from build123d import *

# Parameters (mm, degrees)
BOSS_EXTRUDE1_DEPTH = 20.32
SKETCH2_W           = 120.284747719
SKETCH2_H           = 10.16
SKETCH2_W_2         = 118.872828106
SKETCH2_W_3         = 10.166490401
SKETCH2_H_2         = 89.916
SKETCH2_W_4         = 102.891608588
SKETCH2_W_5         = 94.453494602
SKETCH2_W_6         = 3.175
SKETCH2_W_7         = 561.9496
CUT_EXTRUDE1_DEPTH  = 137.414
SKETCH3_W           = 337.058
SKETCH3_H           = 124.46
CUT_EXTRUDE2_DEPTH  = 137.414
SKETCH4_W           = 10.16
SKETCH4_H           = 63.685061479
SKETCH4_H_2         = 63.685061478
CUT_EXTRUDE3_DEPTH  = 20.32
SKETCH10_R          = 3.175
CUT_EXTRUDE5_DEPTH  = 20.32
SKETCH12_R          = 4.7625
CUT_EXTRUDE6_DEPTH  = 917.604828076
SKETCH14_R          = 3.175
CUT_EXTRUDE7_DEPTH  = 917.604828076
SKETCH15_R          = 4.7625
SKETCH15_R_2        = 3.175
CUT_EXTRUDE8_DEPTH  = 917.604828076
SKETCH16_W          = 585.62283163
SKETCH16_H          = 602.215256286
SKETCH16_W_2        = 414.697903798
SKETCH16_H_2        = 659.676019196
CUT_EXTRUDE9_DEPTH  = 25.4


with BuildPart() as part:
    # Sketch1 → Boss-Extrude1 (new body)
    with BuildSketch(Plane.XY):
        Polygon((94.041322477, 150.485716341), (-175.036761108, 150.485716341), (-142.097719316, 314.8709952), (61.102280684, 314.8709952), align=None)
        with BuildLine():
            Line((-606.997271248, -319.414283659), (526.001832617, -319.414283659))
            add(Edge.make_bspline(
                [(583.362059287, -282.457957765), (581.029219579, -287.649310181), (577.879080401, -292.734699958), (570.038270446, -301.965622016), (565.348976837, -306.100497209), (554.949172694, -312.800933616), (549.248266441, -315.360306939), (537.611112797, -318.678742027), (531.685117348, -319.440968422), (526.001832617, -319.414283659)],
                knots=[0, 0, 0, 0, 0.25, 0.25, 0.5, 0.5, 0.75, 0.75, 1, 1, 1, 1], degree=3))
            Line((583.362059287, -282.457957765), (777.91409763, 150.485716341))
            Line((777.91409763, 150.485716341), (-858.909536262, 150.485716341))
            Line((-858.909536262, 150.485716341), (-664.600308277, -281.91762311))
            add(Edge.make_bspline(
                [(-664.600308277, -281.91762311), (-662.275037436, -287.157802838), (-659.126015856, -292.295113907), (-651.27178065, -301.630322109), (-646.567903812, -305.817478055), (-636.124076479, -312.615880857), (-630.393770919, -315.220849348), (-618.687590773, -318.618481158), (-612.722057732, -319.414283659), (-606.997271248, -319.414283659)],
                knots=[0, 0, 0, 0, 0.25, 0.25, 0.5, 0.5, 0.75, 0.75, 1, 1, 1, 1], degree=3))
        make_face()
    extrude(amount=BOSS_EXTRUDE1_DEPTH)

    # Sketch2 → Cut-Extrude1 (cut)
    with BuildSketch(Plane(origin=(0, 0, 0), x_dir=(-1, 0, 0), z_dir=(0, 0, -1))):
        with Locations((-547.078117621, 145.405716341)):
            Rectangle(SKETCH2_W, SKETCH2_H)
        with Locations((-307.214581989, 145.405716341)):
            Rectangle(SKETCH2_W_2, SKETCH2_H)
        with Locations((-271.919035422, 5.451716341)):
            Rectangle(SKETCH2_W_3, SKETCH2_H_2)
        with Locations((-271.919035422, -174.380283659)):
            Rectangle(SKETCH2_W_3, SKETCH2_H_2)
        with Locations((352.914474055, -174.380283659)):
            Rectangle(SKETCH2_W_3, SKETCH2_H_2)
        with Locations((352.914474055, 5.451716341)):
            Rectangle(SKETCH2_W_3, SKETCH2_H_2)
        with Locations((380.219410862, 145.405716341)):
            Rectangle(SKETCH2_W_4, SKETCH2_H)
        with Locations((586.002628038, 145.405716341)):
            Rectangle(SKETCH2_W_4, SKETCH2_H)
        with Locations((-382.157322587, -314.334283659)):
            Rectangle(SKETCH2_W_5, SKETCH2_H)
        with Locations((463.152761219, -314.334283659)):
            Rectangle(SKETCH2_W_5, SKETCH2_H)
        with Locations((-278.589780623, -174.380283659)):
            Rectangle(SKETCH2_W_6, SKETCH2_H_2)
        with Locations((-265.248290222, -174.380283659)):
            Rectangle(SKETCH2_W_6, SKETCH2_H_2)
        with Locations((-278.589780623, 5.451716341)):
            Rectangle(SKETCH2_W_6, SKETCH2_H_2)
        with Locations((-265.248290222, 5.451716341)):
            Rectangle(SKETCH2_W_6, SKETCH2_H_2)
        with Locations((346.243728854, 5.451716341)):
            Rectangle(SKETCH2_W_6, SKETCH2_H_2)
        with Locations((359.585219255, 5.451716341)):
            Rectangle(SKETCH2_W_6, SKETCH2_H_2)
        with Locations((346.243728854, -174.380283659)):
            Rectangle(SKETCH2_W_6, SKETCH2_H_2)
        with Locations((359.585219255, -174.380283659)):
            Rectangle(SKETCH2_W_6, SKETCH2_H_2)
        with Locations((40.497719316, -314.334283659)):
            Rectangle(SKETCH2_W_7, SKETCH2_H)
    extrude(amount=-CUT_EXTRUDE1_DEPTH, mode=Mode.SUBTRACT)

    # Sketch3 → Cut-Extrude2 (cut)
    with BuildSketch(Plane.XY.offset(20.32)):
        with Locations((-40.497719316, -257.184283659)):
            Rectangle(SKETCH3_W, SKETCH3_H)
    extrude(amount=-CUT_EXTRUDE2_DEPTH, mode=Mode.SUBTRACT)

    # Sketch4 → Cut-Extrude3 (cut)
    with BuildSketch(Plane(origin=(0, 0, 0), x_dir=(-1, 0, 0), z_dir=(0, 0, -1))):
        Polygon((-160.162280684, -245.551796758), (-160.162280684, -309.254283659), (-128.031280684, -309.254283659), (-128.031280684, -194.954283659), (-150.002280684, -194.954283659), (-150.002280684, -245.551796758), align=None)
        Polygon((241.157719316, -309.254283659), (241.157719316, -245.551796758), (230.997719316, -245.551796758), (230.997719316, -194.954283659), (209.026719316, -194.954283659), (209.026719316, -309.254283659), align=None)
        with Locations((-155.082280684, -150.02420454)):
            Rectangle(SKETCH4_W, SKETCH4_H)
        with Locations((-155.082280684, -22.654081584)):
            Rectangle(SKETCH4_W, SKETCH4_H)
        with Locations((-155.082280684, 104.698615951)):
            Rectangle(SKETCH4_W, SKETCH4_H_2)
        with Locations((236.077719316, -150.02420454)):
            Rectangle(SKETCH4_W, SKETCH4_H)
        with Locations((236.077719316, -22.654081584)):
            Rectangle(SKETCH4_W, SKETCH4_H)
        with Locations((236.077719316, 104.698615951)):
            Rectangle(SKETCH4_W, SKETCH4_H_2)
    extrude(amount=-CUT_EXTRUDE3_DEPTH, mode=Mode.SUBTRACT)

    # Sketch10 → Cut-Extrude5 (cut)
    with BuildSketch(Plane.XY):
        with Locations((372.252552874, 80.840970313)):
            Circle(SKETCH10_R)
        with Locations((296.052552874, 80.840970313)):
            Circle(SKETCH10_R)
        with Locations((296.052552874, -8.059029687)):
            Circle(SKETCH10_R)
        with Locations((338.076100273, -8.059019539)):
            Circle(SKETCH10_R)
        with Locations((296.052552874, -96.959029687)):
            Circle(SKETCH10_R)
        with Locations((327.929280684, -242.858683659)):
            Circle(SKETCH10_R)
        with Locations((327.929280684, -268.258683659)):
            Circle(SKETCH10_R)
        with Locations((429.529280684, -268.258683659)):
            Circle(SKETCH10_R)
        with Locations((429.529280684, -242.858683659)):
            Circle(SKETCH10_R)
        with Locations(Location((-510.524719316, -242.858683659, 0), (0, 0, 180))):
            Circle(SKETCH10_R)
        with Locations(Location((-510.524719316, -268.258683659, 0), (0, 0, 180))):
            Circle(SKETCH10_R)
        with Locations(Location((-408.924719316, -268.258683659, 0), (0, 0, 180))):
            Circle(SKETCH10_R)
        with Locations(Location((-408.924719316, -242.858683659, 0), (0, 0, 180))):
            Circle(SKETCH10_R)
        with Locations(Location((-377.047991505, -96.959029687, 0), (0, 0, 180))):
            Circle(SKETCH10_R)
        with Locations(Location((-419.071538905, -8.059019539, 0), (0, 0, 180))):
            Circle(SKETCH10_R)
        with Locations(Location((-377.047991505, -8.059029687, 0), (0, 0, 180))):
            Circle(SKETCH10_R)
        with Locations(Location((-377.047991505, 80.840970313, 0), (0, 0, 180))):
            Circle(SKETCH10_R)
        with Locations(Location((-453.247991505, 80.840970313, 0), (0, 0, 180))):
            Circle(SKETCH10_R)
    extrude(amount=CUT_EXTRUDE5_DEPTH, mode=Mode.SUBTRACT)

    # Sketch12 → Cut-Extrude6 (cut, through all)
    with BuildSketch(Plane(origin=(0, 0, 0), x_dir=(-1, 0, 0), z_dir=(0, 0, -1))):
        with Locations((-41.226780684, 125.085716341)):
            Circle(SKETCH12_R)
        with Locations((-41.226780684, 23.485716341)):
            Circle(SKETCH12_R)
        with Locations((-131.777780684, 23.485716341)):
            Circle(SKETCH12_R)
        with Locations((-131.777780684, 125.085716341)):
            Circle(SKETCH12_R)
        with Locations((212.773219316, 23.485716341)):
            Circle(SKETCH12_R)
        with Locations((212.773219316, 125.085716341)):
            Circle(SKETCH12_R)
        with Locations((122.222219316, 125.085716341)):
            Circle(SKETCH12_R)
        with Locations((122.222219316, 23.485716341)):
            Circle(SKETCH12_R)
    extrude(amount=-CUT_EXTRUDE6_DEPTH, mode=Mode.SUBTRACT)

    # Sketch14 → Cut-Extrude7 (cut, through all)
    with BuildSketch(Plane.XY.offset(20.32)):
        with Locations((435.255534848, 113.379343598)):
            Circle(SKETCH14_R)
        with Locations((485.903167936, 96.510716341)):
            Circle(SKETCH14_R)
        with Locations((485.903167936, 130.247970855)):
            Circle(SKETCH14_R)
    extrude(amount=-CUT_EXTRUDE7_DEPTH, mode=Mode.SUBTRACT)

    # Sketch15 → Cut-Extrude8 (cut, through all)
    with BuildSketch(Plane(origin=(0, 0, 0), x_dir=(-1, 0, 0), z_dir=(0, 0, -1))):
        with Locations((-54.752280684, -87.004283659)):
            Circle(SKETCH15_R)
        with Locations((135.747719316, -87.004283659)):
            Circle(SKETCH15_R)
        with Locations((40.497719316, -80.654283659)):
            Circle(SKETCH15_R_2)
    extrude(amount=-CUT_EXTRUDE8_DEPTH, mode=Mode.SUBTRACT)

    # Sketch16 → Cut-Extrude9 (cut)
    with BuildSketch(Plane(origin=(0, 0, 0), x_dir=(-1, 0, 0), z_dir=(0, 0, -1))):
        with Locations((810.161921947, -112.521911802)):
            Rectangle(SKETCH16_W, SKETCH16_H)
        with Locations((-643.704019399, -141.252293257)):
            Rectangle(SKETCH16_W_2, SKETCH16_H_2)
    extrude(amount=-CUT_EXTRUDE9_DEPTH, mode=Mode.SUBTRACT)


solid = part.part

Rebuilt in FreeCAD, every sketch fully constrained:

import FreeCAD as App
import Part
import Sketcher
from FreeCAD import Vector
Q = App.Units.Quantity

doc = App.newDocument("Part")
body = doc.addObject("PartDesign::Body", "Body")

sketch1 = doc.addObject("Sketcher::SketchObject", "Sketch")
body.addObject(sketch1)
sketch1.AttachmentSupport = (doc.XY_Plane, [""])
sketch1.MapMode = "FlatFace"
sketch1.addGeometry([
    Part.LineSegment(Vector(-142.097719, 314.870995, 0), Vector(-175.036761, 150.485716, 0)),
    Part.LineSegment(Vector(-175.036761, 150.485716, 0), Vector(-858.909536, 150.485716, 0)),
    Part.LineSegment(Vector(-858.909536, 150.485716, 0), Vector(-664.600308, -281.917623, 0)),
    Part.BSplineCurve([Vector(-664.600308, -281.917623, 0), Vector(-662.275037, -287.157803, 0), Vector(-659.126016, -292.295114, 0), Vector(-651.271781, -301.630322, 0), Vector(-646.567904, -305.817478, 0), Vector(-636.124076, -312.615881, 0), Vector(-630.393771, -315.220849, 0), Vector(-618.687591, -318.618481, 0), Vector(-612.722058, -319.414284, 0), Vector(-606.997271, -319.414284, 0)], [4, 2, 2, 2, 4], [0, 0.25, 0.5, 0.75, 1], False, 3, [1, 1, 1, 1, 1, 1, 1, 1, 1, 1], False),
    Part.LineSegment(Vector(-606.997271, -319.414284, 0), Vector(526.001833, -319.414284, 0)),
    Part.BSplineCurve([Vector(583.362059, -282.457958, 0), Vector(581.02922, -287.64931, 0), Vector(577.87908, -292.7347, 0), Vector(570.03827, -301.965622, 0), Vector(565.348977, -306.100497, 0), Vector(554.949173, -312.800934, 0), Vector(549.248266, -315.360307, 0), Vector(537.611113, -318.678742, 0), Vector(531.685117, -319.440968, 0), Vector(526.001833, -319.414284, 0)], [4, 2, 2, 2, 4], [0, 0.25, 0.5, 0.75, 1], False, 3, [1, 1, 1, 1, 1, 1, 1, 1, 1, 1], False),
    Part.LineSegment(Vector(583.362059, -282.457958, 0), Vector(777.914098, 150.485716, 0)),
    Part.LineSegment(Vector(777.914098, 150.485716, 0), Vector(94.041322, 150.485716, 0)),
    Part.LineSegment(Vector(94.041322, 150.485716, 0), Vector(61.102281, 314.870995, 0)),
    Part.LineSegment(Vector(61.102281, 314.870995, 0), Vector(-142.097719, 314.870995, 0)),
], False)
sketch1.addConstraint([
    Sketcher.Constraint("Block", 3),
    Sketcher.Constraint("Block", 5),
    Sketcher.Constraint("Coincident", 0, 2, 1, 1),
    Sketcher.Constraint("Coincident", 1, 2, 2, 1),
    Sketcher.Constraint("Coincident", 2, 2, 3, 1),
    Sketcher.Constraint("Coincident", 3, 2, 4, 1),
    Sketcher.Constraint("Coincident", 4, 2, 5, 2),
    Sketcher.Constraint("Coincident", 5, 1, 6, 1),
    Sketcher.Constraint("Coincident", 6, 2, 7, 1),
    Sketcher.Constraint("Coincident", 7, 2, 8, 1),
    Sketcher.Constraint("Coincident", 8, 2, 9, 1),
    Sketcher.Constraint("Coincident", 9, 2, 0, 1),
    Sketcher.Constraint("Horizontal", 1),
    Sketcher.Constraint("Horizontal", 7),
    Sketcher.Constraint("Horizontal", 9),
    Sketcher.Constraint("Horizontal", 1, 2, 6, 2),
    Sketcher.Constraint("Equal", 1, 7),
    Sketcher.Constraint("Equal", 0, 8),
    Sketcher.Constraint("DistanceX", 9, 2, 9, 1, Q("8 in")),
    Sketcher.Constraint("DistanceY", 4, 2, 0, 2, Q("18.5 in")),
    Sketcher.Constraint("DistanceX", 1, 2, 1, 1, Q("683.872775 mm")),
    Sketcher.Constraint("DistanceX", 0, 2, -1, 1, Q("175.036761 mm")),
    Sketcher.Constraint("DistanceX", -1, 1, 8, 2, Q("61.102281 mm")),
    Sketcher.Constraint("DistanceY", 7, 2, 8, 2, Q("164.385279 mm")),
])
pad1 = doc.addObject("PartDesign::Pad", "Pad")
body.addObject(pad1)
pad1.Profile = sketch1
pad1.Length = Q("0.8 in")

sketch2 = doc.addObject("Sketcher::SketchObject", "Sketch001")
body.addObject(sketch2)
sketch2.AttachmentSupport = (doc.XY_Plane, [""])
sketch2.MapMode = "FlatFace"
sketch2.addGeometry([
    Part.LineSegment(Vector(607, 150, 0), Vector(607, 140, 0)),
    Part.LineSegment(Vector(607, 140, 0), Vector(487, 140, 0)),
    Part.LineSegment(Vector(487, 140, 0), Vector(487, 150, 0)),
    Part.LineSegment(Vector(487, 150, 0), Vector(607, 150, 0)),
    Part.LineSegment(Vector(367, 150, 0), Vector(367, 140, 0)),
    Part.LineSegment(Vector(367, 140, 0), Vector(248, 140, 0)),
    Part.LineSegment(Vector(248, 140, 0), Vector(248, 150, 0)),
    Part.LineSegment(Vector(248, 150, 0), Vector(367, 150, 0)),
    Part.LineSegment(Vector(280, 50, 0), Vector(280, -40, 0)),
    Part.LineSegment(Vector(280, -40, 0), Vector(264, -40, 0)),
    Part.LineSegment(Vector(264, -40, 0), Vector(264, 50, 0)),
    Part.LineSegment(Vector(264, 50, 0), Vector(280, 50, 0)),
    Part.LineSegment(Vector(280, -129, 0), Vector(280, -219, 0)),
    Part.LineSegment(Vector(280, -219, 0), Vector(264, -219, 0)),
    Part.LineSegment(Vector(264, -219, 0), Vector(264, -129, 0)),
    Part.LineSegment(Vector(264, -129, 0), Vector(280, -129, 0)),
    Part.LineSegment(Vector(-345, -129, 0), Vector(-345, -219, 0)),
    Part.LineSegment(Vector(-345, -219, 0), Vector(-361, -219, 0)),
    Part.LineSegment(Vector(-361, -219, 0), Vector(-361, -129, 0)),
    Part.LineSegment(Vector(-361, -129, 0), Vector(-345, -129, 0)),
    Part.LineSegment(Vector(-345, 50, 0), Vector(-345, -40, 0)),
    Part.LineSegment(Vector(-345, -40, 0), Vector(-361, -40, 0)),
    Part.LineSegment(Vector(-361, -40, 0), Vector(-361, 50, 0)),
    Part.LineSegment(Vector(-361, 50, 0), Vector(-345, 50, 0)),
    Part.LineSegment(Vector(-329, 150, 0), Vector(-329, 140, 0)),
    Part.LineSegment(Vector(-329, 140, 0), Vector(-432, 140, 0)),
    Part.LineSegment(Vector(-432, 140, 0), Vector(-432, 150, 0)),
    Part.LineSegment(Vector(-432, 150, 0), Vector(-329, 150, 0)),
    Part.LineSegment(Vector(-535, 150, 0), Vector(-535, 140, 0)),
    Part.LineSegment(Vector(-535, 140, 0), Vector(-637, 140, 0)),
    Part.LineSegment(Vector(-637, 140, 0), Vector(-637, 150, 0)),
    Part.LineSegment(Vector(-637, 150, 0), Vector(-535, 150, 0)),
    Part.LineSegment(Vector(429, -309, 0), Vector(429, -319, 0)),
    Part.LineSegment(Vector(429, -319, 0), Vector(335, -319, 0)),
    Part.LineSegment(Vector(335, -319, 0), Vector(335, -309, 0)),
    Part.LineSegment(Vector(335, -309, 0), Vector(429, -309, 0)),
    Part.LineSegment(Vector(-416, -309, 0), Vector(-416, -319, 0)),
    Part.LineSegment(Vector(-416, -319, 0), Vector(-510, -319, 0)),
    Part.LineSegment(Vector(-510, -319, 0), Vector(-510, -309, 0)),
    Part.LineSegment(Vector(-510, -309, 0), Vector(-416, -309, 0)),
    Part.LineSegment(Vector(240, -309, 0), Vector(240, -319, 0)),
    Part.LineSegment(Vector(240, -319, 0), Vector(-321, -319, 0)),
    Part.LineSegment(Vector(-321, -319, 0), Vector(-321, -309, 0)),
    Part.LineSegment(Vector(-321, -309, 0), Vector(240, -309, 0)),
], False)
sketch2.addConstraint([
    Sketcher.Constraint("Coincident", 0, 2, 1, 1),
    Sketcher.Constraint("Coincident", 1, 2, 2, 1),
    Sketcher.Constraint("Coincident", 2, 2, 3, 1),
    Sketcher.Constraint("Coincident", 3, 2, 0, 1),
    Sketcher.Constraint("Coincident", 4, 2, 5, 1),
    Sketcher.Constraint("Coincident", 5, 2, 6, 1),
    Sketcher.Constraint("Coincident", 6, 2, 7, 1),
    Sketcher.Constraint("Coincident", 7, 2, 4, 1),
    Sketcher.Constraint("Coincident", 8, 2, 9, 1),
    Sketcher.Constraint("Coincident", 9, 2, 10, 1),
    Sketcher.Constraint("Coincident", 10, 2, 11, 1),
    Sketcher.Constraint("Coincident", 11, 2, 8, 1),
    Sketcher.Constraint("Coincident", 12, 2, 13, 1),
    Sketcher.Constraint("Coincident", 13, 2, 14, 1),
    Sketcher.Constraint("Coincident", 14, 2, 15, 1),
    Sketcher.Constraint("Coincident", 15, 2, 12, 1),
    Sketcher.Constraint("Coincident", 16, 2, 17, 1),
    Sketcher.Constraint("Coincident", 17, 2, 18, 1),
    Sketcher.Constraint("Coincident", 18, 2, 19, 1),
    Sketcher.Constraint("Coincident", 19, 2, 16, 1),
    Sketcher.Constraint("Coincident", 20, 2, 21, 1),
    Sketcher.Constraint("Coincident", 21, 2, 22, 1),
    Sketcher.Constraint("Coincident", 22, 2, 23, 1),
    Sketcher.Constraint("Coincident", 23, 2, 20, 1),
    Sketcher.Constraint("Coincident", 24, 2, 25, 1),
    Sketcher.Constraint("Coincident", 25, 2, 26, 1),
    Sketcher.Constraint("Coincident", 26, 2, 27, 1),
    Sketcher.Constraint("Coincident", 27, 2, 24, 1),
    Sketcher.Constraint("Coincident", 28, 2, 29, 1),
    Sketcher.Constraint("Coincident", 29, 2, 30, 1),
    Sketcher.Constraint("Coincident", 30, 2, 31, 1),
    Sketcher.Constraint("Coincident", 31, 2, 28, 1),
    Sketcher.Constraint("Coincident", 32, 2, 33, 1),
    Sketcher.Constraint("Coincident", 33, 2, 34, 1),
    Sketcher.Constraint("Coincident", 34, 2, 35, 1),
    Sketcher.Constraint("Coincident", 35, 2, 32, 1),
    Sketcher.Constraint("Coincident", 36, 2, 37, 1),
    Sketcher.Constraint("Coincident", 37, 2, 38, 1),
    Sketcher.Constraint("Coincident", 38, 2, 39, 1),
    Sketcher.Constraint("Coincident", 39, 2, 36, 1),
    Sketcher.Constraint("Coincident", 40, 2, 41, 1),
    Sketcher.Constraint("Coincident", 41, 2, 42, 1),
    Sketcher.Constraint("Coincident", 42, 2, 43, 1),
    Sketcher.Constraint("Coincident", 43, 2, 40, 1),
    Sketcher.Constraint("Vertical", 0),
    Sketcher.Constraint("Horizontal", 1),
    Sketcher.Constraint("Vertical", 2),
    Sketcher.Constraint("Horizontal", 3),
    Sketcher.Constraint("Vertical", 4),
    Sketcher.Constraint("Horizontal", 5),
    Sketcher.Constraint("Vertical", 6),
    Sketcher.Constraint("Horizontal", 7),
    Sketcher.Constraint("Vertical", 8),
    Sketcher.Constraint("Horizontal", 9),
    Sketcher.Constraint("Vertical", 10),
    Sketcher.Constraint("Horizontal", 11),
    Sketcher.Constraint("Vertical", 12),
    Sketcher.Constraint("Horizontal", 13),
    Sketcher.Constraint("Vertical", 14),
    Sketcher.Constraint("Horizontal", 15),
    Sketcher.Constraint("Vertical", 16),
    Sketcher.Constraint("Horizontal", 17),
    Sketcher.Constraint("Vertical", 18),
    Sketcher.Constraint("Horizontal", 19),
    Sketcher.Constraint("Vertical", 20),
    Sketcher.Constraint("Horizontal", 21),
    Sketcher.Constraint("Vertical", 22),
    Sketcher.Constraint("Horizontal", 23),
    Sketcher.Constraint("Vertical", 24),
    Sketcher.Constraint("Horizontal", 25),
    Sketcher.Constraint("Vertical", 26),
    Sketcher.Constraint("Horizontal", 27),
    Sketcher.Constraint("Vertical", 28),
    Sketcher.Constraint("Horizontal", 29),
    Sketcher.Constraint("Vertical", 30),
    Sketcher.Constraint("Horizontal", 31),
    Sketcher.Constraint("Vertical", 32),
    Sketcher.Constraint("Horizontal", 33),
    Sketcher.Constraint("Vertical", 34),
    Sketcher.Constraint("Horizontal", 35),
    Sketcher.Constraint("Vertical", 36),
    Sketcher.Constraint("Horizontal", 37),
    Sketcher.Constraint("Vertical", 38),
    Sketcher.Constraint("Horizontal", 39),
    Sketcher.Constraint("Vertical", 40),
    Sketcher.Constraint("Horizontal", 41),
    Sketcher.Constraint("Vertical", 42),
    Sketcher.Constraint("Horizontal", 43),
    Sketcher.Constraint("Horizontal", 1, 2, 4, 2),
    Sketcher.Constraint("Horizontal", 3, 2, 6, 2),
    Sketcher.Constraint("Horizontal", 13, 2, 16, 2),
    Sketcher.Constraint("Horizontal", 15, 2, 18, 2),
    Sketcher.Constraint("Horizontal", 9, 2, 20, 2),
    Sketcher.Constraint("Horizontal", 11, 2, 22, 2),
    Sketcher.Constraint("Horizontal", 5, 2, 24, 2),
    Sketcher.Constraint("Horizontal", 7, 2, 26, 2),
    Sketcher.Constraint("Horizontal", 25, 2, 28, 2),
    Sketcher.Constraint("Horizontal", 27, 2, 30, 2),
    Sketcher.Constraint("Horizontal", 33, 2, 36, 2),
    Sketcher.Constraint("Horizontal", 35, 2, 38, 2),
    Sketcher.Constraint("Horizontal", 37, 2, 40, 2),
    Sketcher.Constraint("Horizontal", 39, 2, 42, 2),
    Sketcher.Constraint("Vertical", 11, 2, 12, 2),
    Sketcher.Constraint("Vertical", 10, 2, 13, 2),
    Sketcher.Constraint("Vertical", 19, 2, 20, 2),
    Sketcher.Constraint("Vertical", 18, 2, 21, 2),
    Sketcher.Constraint("Equal", 15, 17),
    Sketcher.Constraint("Equal", 27, 29),
    Sketcher.Constraint("Equal", 35, 37),
    Sketcher.Constraint("Equal", 10, 12),
    Sketcher.Constraint("Equal", 30, 32),
    Sketcher.Constraint("DistanceY", 0, 2, 0, 1, Q("0.4 in")),
    Sketcher.Constraint("DistanceY", 8, 2, 8, 1, Q("3.54 in")),
    Sketcher.Constraint("DistanceX", 41, 2, 41, 1, Q("22.124 in")),
    Sketcher.Constraint("DistanceY", 8, 2, 5, 2, Q("7.08 in")),
    Sketcher.Constraint("DistanceY", 12, 2, 8, 2, Q("7.08 in")),
    Sketcher.Constraint("DistanceX", 17, 2, 12, 2, Q("25.25 in")),
    Sketcher.Constraint("DistanceY", 32, 2, 12, 2, Q("3.94 in")),
    Sketcher.Constraint("DistanceX", 40, 2, 12, 2, Q("1.563 in")),
    Sketcher.Constraint("DistanceX", 5, 2, 9, 2, Q("0.6253001 in")),
    Sketcher.Constraint("DistanceX", 23, 2, 24, 2, Q("0.6253001 in")),
    Sketcher.Constraint("DistanceX", 5, 2, 5, 1, Q("118.872828 mm")),
    Sketcher.Constraint("DistanceX", 9, 2, 9, 1, Q("16.51649 mm")),
    Sketcher.Constraint("DistanceX", 25, 2, 25, 1, Q("102.891609 mm")),
    Sketcher.Constraint("DistanceX", 1, 2, 1, 1, Q("120.284748 mm")),
    Sketcher.Constraint("DistanceX", 33, 2, 33, 1, Q("94.453495 mm")),
    Sketcher.Constraint("DistanceX", -1, 1, 0, 2, Q("607.220491 mm")),
    Sketcher.Constraint("DistanceX", -1, 1, 8, 2, Q("280.177281 mm")),
    Sketcher.Constraint("DistanceX", -1, 1, 32, 2, Q("429.38407 mm")),
    Sketcher.Constraint("DistanceX", 37, 2, -1, 1, Q("510.379509 mm")),
    Sketcher.Constraint("DistanceX", 28, 2, 25, 2, Q("102.891609 mm")),
    Sketcher.Constraint("DistanceY", -1, 1, 0, 2, Q("140.325716 mm")),
])
pocket1 = doc.addObject("PartDesign::Pocket", "Pocket")
body.addObject(pocket1)
pocket1.Profile = sketch2
pocket1.Length = Q("5.41 in")
pocket1.Reversed = True

sketch3 = doc.addObject("Sketcher::SketchObject", "Sketch002")
body.addObject(sketch3)
sketch3.AttachmentSupport = (doc.XY_Plane, [""])
sketch3.MapMode = "FlatFace"
sketch3.AttachmentOffset = App.Placement(Vector(0, 0, 0.8 * 25.4), App.Rotation())
sketch3.addGeometry([
    Part.LineSegment(Vector(-209, -195, 0), Vector(-209, -319, 0)),
    Part.LineSegment(Vector(-209, -319, 0), Vector(128, -319, 0)),
    Part.LineSegment(Vector(128, -319, 0), Vector(128, -195, 0)),
    Part.LineSegment(Vector(128, -195, 0), Vector(-209, -195, 0)),
], False)
sketch3.addConstraint([
    Sketcher.Constraint("Coincident", 0, 2, 1, 1),
    Sketcher.Constraint("Coincident", 1, 2, 2, 1),
    Sketcher.Constraint("Coincident", 2, 2, 3, 1),
    Sketcher.Constraint("Coincident", 3, 2, 0, 1),
    Sketcher.Constraint("Vertical", 0),
    Sketcher.Constraint("Horizontal", 1),
    Sketcher.Constraint("Vertical", 2),
    Sketcher.Constraint("Horizontal", 3),
    Sketcher.Constraint("DistanceY", 0, 2, 0, 1, Q("4.9 in")),
    Sketcher.Constraint("DistanceX", 1, 1, 1, 2, Q("13.27 in")),
    Sketcher.Constraint("DistanceX", 0, 2, -1, 1, Q("209.026719 mm")),
    Sketcher.Constraint("DistanceY", 0, 2, -1, 1, Q("319.414284 mm")),
])
pocket2 = doc.addObject("PartDesign::Pocket", "Pocket001")
body.addObject(pocket2)
pocket2.Profile = sketch3
pocket2.Length = Q("5.41 in")

sketch4 = doc.addObject("Sketcher::SketchObject", "Sketch003")
body.addObject(sketch4)
sketch4.AttachmentSupport = (doc.XY_Plane, [""])
sketch4.MapMode = "FlatFace"
sketch4.addGeometry([
    Part.LineSegment(Vector(160, -246, 0), Vector(160, -309, 0)),
    Part.LineSegment(Vector(160, -309, 0), Vector(128, -309, 0)),
    Part.LineSegment(Vector(128, -309, 0), Vector(128, -195, 0)),
    Part.LineSegment(Vector(128, -195, 0), Vector(150, -195, 0)),
    Part.LineSegment(Vector(150, -195, 0), Vector(150, -246, 0)),
    Part.LineSegment(Vector(150, -246, 0), Vector(160, -246, 0)),
    Part.LineSegment(Vector(-241, -309, 0), Vector(-241, -246, 0)),
    Part.LineSegment(Vector(-241, -246, 0), Vector(-231, -246, 0)),
    Part.LineSegment(Vector(-231, -246, 0), Vector(-231, -195, 0)),
    Part.LineSegment(Vector(-231, -195, 0), Vector(-209, -195, 0)),
    Part.LineSegment(Vector(-209, -195, 0), Vector(-209, -309, 0)),
    Part.LineSegment(Vector(-209, -309, 0), Vector(-241, -309, 0)),
    Part.LineSegment(Vector(160, -118, 0), Vector(160, -182, 0)),
    Part.LineSegment(Vector(160, -182, 0), Vector(150, -182, 0)),
    Part.LineSegment(Vector(150, -182, 0), Vector(150, -118, 0)),
    Part.LineSegment(Vector(150, -118, 0), Vector(160, -118, 0)),
    Part.LineSegment(Vector(160, 9, 0), Vector(160, -54, 0)),
    Part.LineSegment(Vector(160, -54, 0), Vector(150, -54, 0)),
    Part.LineSegment(Vector(150, -54, 0), Vector(150, 9, 0)),
    Part.LineSegment(Vector(150, 9, 0), Vector(160, 9, 0)),
    Part.LineSegment(Vector(160, 137, 0), Vector(160, 73, 0)),
    Part.LineSegment(Vector(160, 73, 0), Vector(150, 73, 0)),
    Part.LineSegment(Vector(150, 73, 0), Vector(150, 137, 0)),
    Part.LineSegment(Vector(150, 137, 0), Vector(160, 137, 0)),
    Part.LineSegment(Vector(-231, -118, 0), Vector(-231, -182, 0)),
    Part.LineSegment(Vector(-231, -182, 0), Vector(-241, -182, 0)),
    Part.LineSegment(Vector(-241, -182, 0), Vector(-241, -118, 0)),
    Part.LineSegment(Vector(-241, -118, 0), Vector(-231, -118, 0)),
    Part.LineSegment(Vector(-231, 9, 0), Vector(-231, -54, 0)),
    Part.LineSegment(Vector(-231, -54, 0), Vector(-241, -54, 0)),
    Part.LineSegment(Vector(-241, -54, 0), Vector(-241, 9, 0)),
    Part.LineSegment(Vector(-241, 9, 0), Vector(-231, 9, 0)),
    Part.LineSegment(Vector(-231, 137, 0), Vector(-231, 73, 0)),
    Part.LineSegment(Vector(-231, 73, 0), Vector(-241, 73, 0)),
    Part.LineSegment(Vector(-241, 73, 0), Vector(-241, 137, 0)),
    Part.LineSegment(Vector(-241, 137, 0), Vector(-231, 137, 0)),
], False)
sketch4.addConstraint([
    Sketcher.Constraint("Coincident", 0, 2, 1, 1),
    Sketcher.Constraint("Coincident", 1, 2, 2, 1),
    Sketcher.Constraint("Coincident", 2, 2, 3, 1),
    Sketcher.Constraint("Coincident", 3, 2, 4, 1),
    Sketcher.Constraint("Coincident", 4, 2, 5, 1),
    Sketcher.Constraint("Coincident", 5, 2, 0, 1),
    Sketcher.Constraint("Coincident", 6, 2, 7, 1),
    Sketcher.Constraint("Coincident", 7, 2, 8, 1),
    Sketcher.Constraint("Coincident", 8, 2, 9, 1),
    Sketcher.Constraint("Coincident", 9, 2, 10, 1),
    Sketcher.Constraint("Coincident", 10, 2, 11, 1),
    Sketcher.Constraint("Coincident", 11, 2, 6, 1),
    Sketcher.Constraint("Coincident", 12, 2, 13, 1),
    Sketcher.Constraint("Coincident", 13, 2, 14, 1),
    Sketcher.Constraint("Coincident", 14, 2, 15, 1),
    Sketcher.Constraint("Coincident", 15, 2, 12, 1),
    Sketcher.Constraint("Coincident", 16, 2, 17, 1),
    Sketcher.Constraint("Coincident", 17, 2, 18, 1),
    Sketcher.Constraint("Coincident", 18, 2, 19, 1),
    Sketcher.Constraint("Coincident", 19, 2, 16, 1),
    Sketcher.Constraint("Coincident", 20, 2, 21, 1),
    Sketcher.Constraint("Coincident", 21, 2, 22, 1),
    Sketcher.Constraint("Coincident", 22, 2, 23, 1),
    Sketcher.Constraint("Coincident", 23, 2, 20, 1),
    Sketcher.Constraint("Coincident", 24, 2, 25, 1),
    Sketcher.Constraint("Coincident", 25, 2, 26, 1),
    Sketcher.Constraint("Coincident", 26, 2, 27, 1),
    Sketcher.Constraint("Coincident", 27, 2, 24, 1),
    Sketcher.Constraint("Coincident", 28, 2, 29, 1),
    Sketcher.Constraint("Coincident", 29, 2, 30, 1),
    Sketcher.Constraint("Coincident", 30, 2, 31, 1),
    Sketcher.Constraint("Coincident", 31, 2, 28, 1),
    Sketcher.Constraint("Coincident", 32, 2, 33, 1),
    Sketcher.Constraint("Coincident", 33, 2, 34, 1),
    Sketcher.Constraint("Coincident", 34, 2, 35, 1),
    Sketcher.Constraint("Coincident", 35, 2, 32, 1),
    Sketcher.Constraint("Vertical", 0),
    Sketcher.Constraint("Horizontal", 1),
    Sketcher.Constraint("Vertical", 2),
    Sketcher.Constraint("Horizontal", 3),
    Sketcher.Constraint("Vertical", 4),
    Sketcher.Constraint("Horizontal", 5),
    Sketcher.Constraint("Vertical", 6),
    Sketcher.Constraint("Horizontal", 7),
    Sketcher.Constraint("Vertical", 8),
    Sketcher.Constraint("Horizontal", 9),
    Sketcher.Constraint("Vertical", 10),
    Sketcher.Constraint("Horizontal", 11),
    Sketcher.Constraint("Vertical", 12),
    Sketcher.Constraint("Horizontal", 13),
    Sketcher.Constraint("Vertical", 14),
    Sketcher.Constraint("Horizontal", 15),
    Sketcher.Constraint("Vertical", 16),
    Sketcher.Constraint("Horizontal", 17),
    Sketcher.Constraint("Vertical", 18),
    Sketcher.Constraint("Horizontal", 19),
    Sketcher.Constraint("Vertical", 20),
    Sketcher.Constraint("Horizontal", 21),
    Sketcher.Constraint("Vertical", 22),
    Sketcher.Constraint("Horizontal", 23),
    Sketcher.Constraint("Vertical", 24),
    Sketcher.Constraint("Horizontal", 25),
    Sketcher.Constraint("Vertical", 26),
    Sketcher.Constraint("Horizontal", 27),
    Sketcher.Constraint("Vertical", 28),
    Sketcher.Constraint("Horizontal", 29),
    Sketcher.Constraint("Vertical", 30),
    Sketcher.Constraint("Horizontal", 31),
    Sketcher.Constraint("Vertical", 32),
    Sketcher.Constraint("Horizontal", 33),
    Sketcher.Constraint("Vertical", 34),
    Sketcher.Constraint("Horizontal", 35),
    Sketcher.Constraint("Horizontal", 5, 2, 6, 2),
    Sketcher.Constraint("Horizontal", 3, 2, 8, 2),
    Sketcher.Constraint("Horizontal", 1, 2, 10, 2),
    Sketcher.Constraint("Horizontal", 13, 2, 24, 2),
    Sketcher.Constraint("Horizontal", 15, 2, 26, 2),
    Sketcher.Constraint("Horizontal", 17, 2, 28, 2),
    Sketcher.Constraint("Horizontal", 19, 2, 30, 2),
    Sketcher.Constraint("Horizontal", 21, 2, 32, 2),
    Sketcher.Constraint("Horizontal", 23, 2, 34, 2),
    Sketcher.Constraint("Vertical", 5, 2, 12, 2),
    Sketcher.Constraint("Vertical", 4, 2, 13, 2),
    Sketcher.Constraint("Vertical", 15, 2, 16, 2),
    Sketcher.Constraint("Vertical", 14, 2, 17, 2),
    Sketcher.Constraint("Vertical", 19, 2, 20, 2),
    Sketcher.Constraint("Vertical", 18, 2, 21, 2),
    Sketcher.Constraint("Vertical", 8, 2, 24, 2),
    Sketcher.Constraint("Vertical", 11, 2, 25, 2),
    Sketcher.Constraint("Vertical", 27, 2, 28, 2),
    Sketcher.Constraint("Vertical", 26, 2, 29, 2),
    Sketcher.Constraint("Vertical", 31, 2, 32, 2),
    Sketcher.Constraint("Vertical", 30, 2, 33, 2),
    Sketcher.Constraint("Equal", 5, 7),
    Sketcher.Constraint("Equal", 3, 9),
    Sketcher.Constraint("Equal", 14, 16),
    Sketcher.Constraint("Equal", 18, 20),
    Sketcher.Constraint("DistanceX", 5, 1, 5, 2, Q("0.4 in")),
    Sketcher.Constraint("DistanceY", 2, 1, 2, 2, Q("4.5 in")),
    Sketcher.Constraint("DistanceX", 7, 2, 4, 2, Q("15 in")),
    Sketcher.Constraint("DistanceX", 1, 2, 1, 1, Q("1.265 in")),
    Sketcher.Constraint("DistanceY", 19, 2, 20, 2, Q("2.5065998 in")),
    Sketcher.Constraint("DistanceY", 12, 2, 12, 1, Q("63.685061 mm")),
    Sketcher.Constraint("DistanceY", 0, 2, 0, 1, Q("63.702487 mm")),
    Sketcher.Constraint("DistanceX", -1, 1, 0, 2, Q("160.162281 mm")),
    Sketcher.Constraint("DistanceY", -1, 1, 18, 2, Q("9.188449 mm")),
    Sketcher.Constraint("DistanceY", 3, 2, 12, 2, Q("13.087548 mm")),
    Sketcher.Constraint("DistanceY", 15, 2, 16, 2, Q("63.685061 mm")),
])
pocket3 = doc.addObject("PartDesign::Pocket", "Pocket002")
body.addObject(pocket3)
pocket3.Profile = sketch4
pocket3.Length = Q("0.8 in")
pocket3.Reversed = True

sketch5 = doc.addObject("Sketcher::SketchObject", "Sketch004")
body.addObject(sketch5)
sketch5.AttachmentSupport = (doc.XY_Plane, [""])
sketch5.MapMode = "FlatFace"
sketch5.addGeometry([
    Part.Circle(Vector(372.3, 80.8, 0), Vector(0, 0, 1), 3.2),
    Part.Circle(Vector(296.1, 80.8, 0), Vector(0, 0, 1), 3.2),
    Part.Circle(Vector(296.1, -8.1, 0), Vector(0, 0, 1), 3.2),
    Part.Circle(Vector(338.1, -8.1, 0), Vector(0, 0, 1), 3.2),
    Part.Circle(Vector(296.1, -97, 0), Vector(0, 0, 1), 3.2),
    Part.Circle(Vector(327.9, -242.9, 0), Vector(0, 0, 1), 3.2),
    Part.Circle(Vector(327.9, -268.3, 0), Vector(0, 0, 1), 3.2),
    Part.Circle(Vector(429.5, -268.3, 0), Vector(0, 0, 1), 3.2),
    Part.Circle(Vector(429.5, -242.9, 0), Vector(0, 0, 1), 3.2),
    Part.Circle(Vector(-510.5, -242.9, 0), Vector(0, 0, 1), 3.2),
    Part.Circle(Vector(-510.5, -268.3, 0), Vector(0, 0, 1), 3.2),
    Part.Circle(Vector(-408.9, -268.3, 0), Vector(0, 0, 1), 3.2),
    Part.Circle(Vector(-408.9, -242.9, 0), Vector(0, 0, 1), 3.2),
    Part.Circle(Vector(-377, -97, 0), Vector(0, 0, 1), 3.2),
    Part.Circle(Vector(-419.1, -8.1, 0), Vector(0, 0, 1), 3.2),
    Part.Circle(Vector(-377, -8.1, 0), Vector(0, 0, 1), 3.2),
    Part.Circle(Vector(-377, 80.8, 0), Vector(0, 0, 1), 3.2),
    Part.Circle(Vector(-453.2, 80.8, 0), Vector(0, 0, 1), 3.2),
], False)
sketch5.addConstraint([
    Sketcher.Constraint("Equal", 0, 1),
    Sketcher.Constraint("Equal", 1, 2),
    Sketcher.Constraint("Equal", 2, 3),
    Sketcher.Constraint("Equal", 3, 4),
    Sketcher.Constraint("Equal", 4, 5),
    Sketcher.Constraint("Equal", 5, 6),
    Sketcher.Constraint("Equal", 6, 7),
    Sketcher.Constraint("Equal", 7, 8),
    Sketcher.Constraint("Equal", 8, 9),
    Sketcher.Constraint("Equal", 9, 10),
    Sketcher.Constraint("Equal", 10, 11),
    Sketcher.Constraint("Equal", 11, 12),
    Sketcher.Constraint("Equal", 12, 13),
    Sketcher.Constraint("Equal", 13, 14),
    Sketcher.Constraint("Equal", 14, 15),
    Sketcher.Constraint("Equal", 15, 16),
    Sketcher.Constraint("Equal", 16, 17),
    Sketcher.Constraint("Horizontal", 0, 3, 1, 3),
    Sketcher.Constraint("Horizontal", 6, 3, 7, 3),
    Sketcher.Constraint("Horizontal", 5, 3, 8, 3),
    Sketcher.Constraint("Horizontal", 8, 3, 9, 3),
    Sketcher.Constraint("Horizontal", 7, 3, 10, 3),
    Sketcher.Constraint("Horizontal", 10, 3, 11, 3),
    Sketcher.Constraint("Horizontal", 9, 3, 12, 3),
    Sketcher.Constraint("Horizontal", 4, 3, 13, 3),
    Sketcher.Constraint("Horizontal", 3, 3, 14, 3),
    Sketcher.Constraint("Horizontal", 2, 3, 15, 3),
    Sketcher.Constraint("Horizontal", 1, 3, 16, 3),
    Sketcher.Constraint("Horizontal", 16, 3, 17, 3),
    Sketcher.Constraint("Vertical", 1, 3, 2, 3),
    Sketcher.Constraint("Vertical", 2, 3, 4, 3),
    Sketcher.Constraint("Vertical", 5, 3, 6, 3),
    Sketcher.Constraint("Vertical", 7, 3, 8, 3),
    Sketcher.Constraint("Vertical", 9, 3, 10, 3),
    Sketcher.Constraint("Vertical", 11, 3, 12, 3),
    Sketcher.Constraint("Vertical", 13, 3, 15, 3),
    Sketcher.Constraint("Vertical", 15, 3, 16, 3),
    Sketcher.Constraint("Diameter", 0, Q("0.25 in")),
    Sketcher.Constraint("DistanceX", 1, 3, 0, 3, Q("3 in")),
    Sketcher.Constraint("DistanceY", 4, 3, 1, 3, Q("7 in")),
    Sketcher.Constraint("DistanceY", 6, 3, 5, 3, Q("1 in")),
    Sketcher.Constraint("DistanceX", 6, 3, 7, 3, Q("4 in")),
    Sketcher.Constraint("DistanceX", 10, 3, 11, 3, Q("4 in")),
    Sketcher.Constraint("DistanceX", 17, 3, 16, 3, Q("3 in")),
    Sketcher.Constraint("DistanceY", 2, 3, 1, 3, Q("3.5 in")),
    Sketcher.Constraint("DistanceX", 9, 3, 5, 3, Q("33.01 in")),
    Sketcher.Constraint("DistanceX", -1, 1, 3, 3, Q("338.0761 mm")),
    Sketcher.Constraint("DistanceY", -1, 1, 0, 3, Q("80.84097 mm")),
    Sketcher.Constraint("DistanceY", 3, 3, -1, 1, Q("8.05902 mm")),
    Sketcher.Constraint("DistanceX", -1, 1, 5, 3, Q("327.929281 mm")),
    Sketcher.Constraint("DistanceX", 13, 3, -1, 1, Q("377.047992 mm")),
    Sketcher.Constraint("DistanceX", 14, 3, -1, 1, Q("419.071539 mm")),
    Sketcher.Constraint("DistanceX", -1, 1, 0, 3, Q("372.252553 mm")),
    Sketcher.Constraint("DistanceY", 5, 3, -1, 1, Q("242.858684 mm")),
])
pocket4 = doc.addObject("PartDesign::Pocket", "Pocket003")
body.addObject(pocket4)
pocket4.Profile = sketch5
pocket4.Length = Q("0.8 in")
pocket4.Reversed = True

sketch6 = doc.addObject("Sketcher::SketchObject", "Sketch005")
body.addObject(sketch6)
sketch6.AttachmentSupport = (doc.XY_Plane, [""])
sketch6.MapMode = "FlatFace"
sketch6.addGeometry([
    Part.Circle(Vector(41.2, 125.1, 0), Vector(0, 0, 1), 4.8),
    Part.Circle(Vector(41.2, 23.5, 0), Vector(0, 0, 1), 4.8),
    Part.Circle(Vector(131.8, 23.5, 0), Vector(0, 0, 1), 4.8),
    Part.Circle(Vector(131.8, 125.1, 0), Vector(0, 0, 1), 4.8),
    Part.Circle(Vector(-212.8, 23.5, 0), Vector(0, 0, 1), 4.8),
    Part.Circle(Vector(-212.8, 125.1, 0), Vector(0, 0, 1), 4.8),
    Part.Circle(Vector(-122.2, 125.1, 0), Vector(0, 0, 1), 4.8),
    Part.Circle(Vector(-122.2, 23.5, 0), Vector(0, 0, 1), 4.8),
], False)
sketch6.addConstraint([
    Sketcher.Constraint("Equal", 0, 1),
    Sketcher.Constraint("Equal", 1, 2),
    Sketcher.Constraint("Equal", 2, 3),
    Sketcher.Constraint("Equal", 3, 4),
    Sketcher.Constraint("Equal", 4, 5),
    Sketcher.Constraint("Equal", 5, 6),
    Sketcher.Constraint("Equal", 6, 7),
    Sketcher.Constraint("Horizontal", 1, 3, 2, 3),
    Sketcher.Constraint("Horizontal", 0, 3, 3, 3),
    Sketcher.Constraint("Horizontal", 2, 3, 4, 3),
    Sketcher.Constraint("Horizontal", 3, 3, 5, 3),
    Sketcher.Constraint("Horizontal", 5, 3, 6, 3),
    Sketcher.Constraint("Horizontal", 4, 3, 7, 3),
    Sketcher.Constraint("Vertical", 0, 3, 1, 3),
    Sketcher.Constraint("Vertical", 2, 3, 3, 3),
    Sketcher.Constraint("Vertical", 4, 3, 5, 3),
    Sketcher.Constraint("Vertical", 6, 3, 7, 3),
    Sketcher.Constraint("Diameter", 0, Q("0.375 in")),
    Sketcher.Constraint("DistanceY", 1, 3, 0, 3, Q("4 in")),
    Sketcher.Constraint("DistanceX", 4, 3, 1, 3, Q("10 in")),
    Sketcher.Constraint("DistanceX", 6, 3, 3, 3, Q("10 in")),
    Sketcher.Constraint("DistanceX", 1, 3, 2, 3, Q("3.565 in")),
    Sketcher.Constraint("DistanceX", -1, 1, 0, 3, Q("41.226781 mm")),
    Sketcher.Constraint("DistanceY", -1, 1, 0, 3, Q("125.085716 mm")),
])
pocket5 = doc.addObject("PartDesign::Pocket", "Pocket004")
body.addObject(pocket5)
pocket5.Profile = sketch6
pocket5.Type = "ThroughAll"
pocket5.Reversed = True

sketch7 = doc.addObject("Sketcher::SketchObject", "Sketch006")
body.addObject(sketch7)
sketch7.AttachmentSupport = (doc.XY_Plane, [""])
sketch7.MapMode = "FlatFace"
sketch7.AttachmentOffset = App.Placement(Vector(0, 0, 0.8 * 25.4), App.Rotation())
sketch7.addGeometry([
    Part.Circle(Vector(435.3, 113.4, 0), Vector(0, 0, 1), 3.2),
    Part.Circle(Vector(485.9, 96.5, 0), Vector(0, 0, 1), 3.2),
    Part.Circle(Vector(485.9, 130.2, 0), Vector(0, 0, 1), 3.2),
], False)
sketch7.addConstraint([
    Sketcher.Constraint("Equal", 0, 1),
    Sketcher.Constraint("Equal", 1, 2),
    Sketcher.Constraint("Vertical", 1, 3, 2, 3),
    Sketcher.Constraint("Diameter", 0, Q("0.25 in")),
    Sketcher.Constraint("DistanceY", -1, 1, 2, 3, Q("130.247971 mm")),
    Sketcher.Constraint("DistanceX", -1, 1, 0, 3, Q("435.255535 mm")),
    Sketcher.Constraint("DistanceY", -1, 1, 0, 3, Q("113.379344 mm")),
    Sketcher.Constraint("DistanceX", -1, 1, 1, 3, Q("485.903168 mm")),
    Sketcher.Constraint("DistanceY", -1, 1, 1, 3, Q("96.510716 mm")),
])
pocket6 = doc.addObject("PartDesign::Pocket", "Pocket005")
body.addObject(pocket6)
pocket6.Profile = sketch7
pocket6.Type = "ThroughAll"

sketch8 = doc.addObject("Sketcher::SketchObject", "Sketch007")
body.addObject(sketch8)
sketch8.AttachmentSupport = (doc.XY_Plane, [""])
sketch8.MapMode = "FlatFace"
sketch8.addGeometry([
    Part.Circle(Vector(54.8, -87, 0), Vector(0, 0, 1), 4.8),
    Part.Circle(Vector(-135.7, -87, 0), Vector(0, 0, 1), 4.8),
    Part.Circle(Vector(-40.5, -80.7, 0), Vector(0, 0, 1), 3.2),
], False)
sketch8.addConstraint([
    Sketcher.Constraint("Equal", 0, 1),
    Sketcher.Constraint("Horizontal", 0, 3, 1, 3),
    Sketcher.Constraint("Diameter", 2, Q("0.25 in")),
    Sketcher.Constraint("Diameter", 0, Q("0.375 in")),
    Sketcher.Constraint("DistanceX", 1, 3, 0, 3, Q("7.5 in")),
    Sketcher.Constraint("DistanceX", 2, 3, 0, 3, Q("3.75 in")),
    Sketcher.Constraint("DistanceY", 0, 3, 2, 3, Q("0.25 in")),
    Sketcher.Constraint("DistanceX", -1, 1, 0, 3, Q("54.752281 mm")),
    Sketcher.Constraint("DistanceY", 0, 3, -1, 1, Q("87.004284 mm")),
])
pocket7 = doc.addObject("PartDesign::Pocket", "Pocket006")
body.addObject(pocket7)
pocket7.Profile = sketch8
pocket7.Type = "ThroughAll"
pocket7.Reversed = True

sketch9 = doc.addObject("Sketcher::SketchObject", "Sketch008")
body.addObject(sketch9)
sketch9.AttachmentSupport = (doc.XY_Plane, [""])
sketch9.MapMode = "FlatFace"
sketch9.addGeometry([
    Part.LineSegment(Vector(-517, 189, 0), Vector(-517, -414, 0)),
    Part.LineSegment(Vector(-517, -414, 0), Vector(-1103, -414, 0)),
    Part.LineSegment(Vector(-1103, -414, 0), Vector(-1103, 189, 0)),
    Part.LineSegment(Vector(-1103, 189, 0), Vector(-517, 189, 0)),
    Part.LineSegment(Vector(851, 189, 0), Vector(851, -471, 0)),
    Part.LineSegment(Vector(851, -471, 0), Vector(436, -471, 0)),
    Part.LineSegment(Vector(436, -471, 0), Vector(436, 189, 0)),
    Part.LineSegment(Vector(436, 189, 0), Vector(851, 189, 0)),
], False)
sketch9.addConstraint([
    Sketcher.Constraint("Coincident", 0, 2, 1, 1),
    Sketcher.Constraint("Coincident", 1, 2, 2, 1),
    Sketcher.Constraint("Coincident", 2, 2, 3, 1),
    Sketcher.Constraint("Coincident", 3, 2, 0, 1),
    Sketcher.Constraint("Coincident", 4, 2, 5, 1),
    Sketcher.Constraint("Coincident", 5, 2, 6, 1),
    Sketcher.Constraint("Coincident", 6, 2, 7, 1),
    Sketcher.Constraint("Coincident", 7, 2, 4, 1),
    Sketcher.Constraint("Vertical", 0),
    Sketcher.Constraint("Horizontal", 1),
    Sketcher.Constraint("Vertical", 2),
    Sketcher.Constraint("Horizontal", 3),
    Sketcher.Constraint("Vertical", 4),
    Sketcher.Constraint("Horizontal", 5),
    Sketcher.Constraint("Vertical", 6),
    Sketcher.Constraint("Horizontal", 7),
    Sketcher.Constraint("Horizontal", 3, 2, 6, 2),
    Sketcher.Constraint("DistanceX", 1, 2, 1, 1, Q("585.622832 mm")),
    Sketcher.Constraint("DistanceY", 4, 2, 4, 1, Q("659.676019 mm")),
    Sketcher.Constraint("DistanceX", 5, 2, 5, 1, Q("414.697904 mm")),
    Sketcher.Constraint("DistanceY", 0, 2, 0, 1, Q("602.215256 mm")),
    Sketcher.Constraint("DistanceY", 0, 2, -1, 1, Q("413.62954 mm")),
    Sketcher.Constraint("DistanceX", -1, 1, 4, 2, Q("851.052971 mm")),
    Sketcher.Constraint("DistanceX", 1, 2, 4, 2, Q("1954.026309 mm")),
])
pocket8 = doc.addObject("PartDesign::Pocket", "Pocket007")
body.addObject(pocket8)
pocket8.Profile = sketch9
pocket8.Length = Q("1 in")
pocket8.Reversed = True

doc.recompute()
